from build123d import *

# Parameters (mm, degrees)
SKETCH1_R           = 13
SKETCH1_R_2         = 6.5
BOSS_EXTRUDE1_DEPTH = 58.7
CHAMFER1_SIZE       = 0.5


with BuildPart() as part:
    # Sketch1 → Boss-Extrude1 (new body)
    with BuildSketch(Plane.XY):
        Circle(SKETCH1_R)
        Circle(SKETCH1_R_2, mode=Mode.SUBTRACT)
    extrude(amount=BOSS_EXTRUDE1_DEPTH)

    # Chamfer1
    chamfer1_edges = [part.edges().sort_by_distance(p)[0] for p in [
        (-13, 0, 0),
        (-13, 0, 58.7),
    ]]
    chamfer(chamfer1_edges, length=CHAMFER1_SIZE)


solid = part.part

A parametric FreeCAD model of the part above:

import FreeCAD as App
import Part
import Sketcher

V = App.Vector


def edges_at(feature, points):
    """Names of the edges that pass closest to the given points."""
    edges = feature.Shape.Edges
    near = lambda p: min(range(len(edges)), key=lambda i: edges[i].distToShape(Part.Vertex(*p))[0])
    return sorted({f"Edge{near(p) + 1}" for p in points})

doc = App.newDocument("Part")
body = doc.addObject("PartDesign::Body", "Body")

sketch1 = body.newObject("Sketcher::SketchObject", "Sketch")
sketch1.AttachmentSupport = (doc.getObject("XY_Plane"), [""])
sketch1.MapMode = "FlatFace"
sketch1.addGeometry(Part.Circle(V(0, 0, 0), V(0, 0, 1), 13), False)
sketch1.addGeometry(Part.Circle(V(0, 0, 0), V(0, 0, 1), 6), False)
sketch1.addConstraint(Sketcher.Constraint("Coincident", 0, 3, -1, 1))
sketch1.addConstraint(Sketcher.Constraint("Coincident", 1, 3, -1, 1))
sketch1.addConstraint(Sketcher.Constraint("Diameter", 0, 26.0))
sketch1.addConstraint(Sketcher.Constraint("Diameter", 1, 13.0))
pad1 = body.newObject("PartDesign::Pad", "Pad")
pad1.Profile = sketch1
pad1.Length = 58.7
doc.recompute()

chamfer = body.newObject("PartDesign::Chamfer", "Chamfer")
chamfer.Base = (pad1, edges_at(pad1, [(-13, 0, 0), (-13, 0, 58.7)]))
chamfer.Size = 0.5

doc.recompute()
